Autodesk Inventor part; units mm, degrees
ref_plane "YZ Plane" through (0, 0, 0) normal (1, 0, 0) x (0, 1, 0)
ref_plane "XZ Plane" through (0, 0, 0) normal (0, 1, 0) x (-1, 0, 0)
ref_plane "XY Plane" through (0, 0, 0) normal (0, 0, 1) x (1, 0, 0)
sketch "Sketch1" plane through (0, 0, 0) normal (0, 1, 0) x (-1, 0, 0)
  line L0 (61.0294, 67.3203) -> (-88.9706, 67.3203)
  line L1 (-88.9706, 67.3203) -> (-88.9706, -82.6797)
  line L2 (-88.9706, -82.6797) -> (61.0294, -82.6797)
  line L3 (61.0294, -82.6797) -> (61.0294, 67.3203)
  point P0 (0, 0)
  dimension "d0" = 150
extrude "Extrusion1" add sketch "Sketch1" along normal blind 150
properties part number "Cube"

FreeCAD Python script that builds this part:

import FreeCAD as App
import Part
import Sketcher

V = App.Vector
Q = App.Units.Quantity


def add_polygon(sketch, points):
    """Adds a closed chain of lines whose ends are joined by coincident constraints."""
    first, n = sketch.GeometryCount, len(points)
    for a, b in zip(points, points[1:] + points[:1]):
        sketch.addGeometry(Part.LineSegment(App.Vector(*a, 0), App.Vector(*b, 0)), False)
    for i in range(n):
        sketch.addConstraint(Sketcher.Constraint("Coincident", first + i, 2, first + (i + 1) % n, 1))

doc = App.newDocument("Part")
body = doc.addObject("PartDesign::Body", "Body")

sketch1 = body.newObject("Sketcher::SketchObject", "Sketch")
sketch1.AttachmentSupport = (doc.getObject("XZ_Plane"), [""])
sketch1.MapMode = "FlatFace"
add_polygon(sketch1, [(-61.0294, -82.6797), (-61.0294, 67.3203), (88.9706, 67.3203), (88.9706, -82.6797)])
sketch1.addConstraint([
    Sketcher.Constraint("Vertical", 0),
    Sketcher.Constraint("Horizontal", 1),
    Sketcher.Constraint("Vertical", 2),
    Sketcher.Constraint("Horizontal", 3),
    Sketcher.Constraint("Equal", 3, 0),
    Sketcher.Constraint("DistanceX", 1, 1, 1, 2, Q("150 mm")),
    Sketcher.Constraint("DistanceX", 0, 2, -1, 1, Q("61.0294 mm")),
    Sketcher.Constraint("DistanceY", -1, 1, 0, 2, Q("67.3203 mm")),
])
pad1 = body.newObject("PartDesign::Pad", "Pad")
pad1.Profile = sketch1
pad1.Length = 150
pad1.Reversed = True

doc.recompute()
